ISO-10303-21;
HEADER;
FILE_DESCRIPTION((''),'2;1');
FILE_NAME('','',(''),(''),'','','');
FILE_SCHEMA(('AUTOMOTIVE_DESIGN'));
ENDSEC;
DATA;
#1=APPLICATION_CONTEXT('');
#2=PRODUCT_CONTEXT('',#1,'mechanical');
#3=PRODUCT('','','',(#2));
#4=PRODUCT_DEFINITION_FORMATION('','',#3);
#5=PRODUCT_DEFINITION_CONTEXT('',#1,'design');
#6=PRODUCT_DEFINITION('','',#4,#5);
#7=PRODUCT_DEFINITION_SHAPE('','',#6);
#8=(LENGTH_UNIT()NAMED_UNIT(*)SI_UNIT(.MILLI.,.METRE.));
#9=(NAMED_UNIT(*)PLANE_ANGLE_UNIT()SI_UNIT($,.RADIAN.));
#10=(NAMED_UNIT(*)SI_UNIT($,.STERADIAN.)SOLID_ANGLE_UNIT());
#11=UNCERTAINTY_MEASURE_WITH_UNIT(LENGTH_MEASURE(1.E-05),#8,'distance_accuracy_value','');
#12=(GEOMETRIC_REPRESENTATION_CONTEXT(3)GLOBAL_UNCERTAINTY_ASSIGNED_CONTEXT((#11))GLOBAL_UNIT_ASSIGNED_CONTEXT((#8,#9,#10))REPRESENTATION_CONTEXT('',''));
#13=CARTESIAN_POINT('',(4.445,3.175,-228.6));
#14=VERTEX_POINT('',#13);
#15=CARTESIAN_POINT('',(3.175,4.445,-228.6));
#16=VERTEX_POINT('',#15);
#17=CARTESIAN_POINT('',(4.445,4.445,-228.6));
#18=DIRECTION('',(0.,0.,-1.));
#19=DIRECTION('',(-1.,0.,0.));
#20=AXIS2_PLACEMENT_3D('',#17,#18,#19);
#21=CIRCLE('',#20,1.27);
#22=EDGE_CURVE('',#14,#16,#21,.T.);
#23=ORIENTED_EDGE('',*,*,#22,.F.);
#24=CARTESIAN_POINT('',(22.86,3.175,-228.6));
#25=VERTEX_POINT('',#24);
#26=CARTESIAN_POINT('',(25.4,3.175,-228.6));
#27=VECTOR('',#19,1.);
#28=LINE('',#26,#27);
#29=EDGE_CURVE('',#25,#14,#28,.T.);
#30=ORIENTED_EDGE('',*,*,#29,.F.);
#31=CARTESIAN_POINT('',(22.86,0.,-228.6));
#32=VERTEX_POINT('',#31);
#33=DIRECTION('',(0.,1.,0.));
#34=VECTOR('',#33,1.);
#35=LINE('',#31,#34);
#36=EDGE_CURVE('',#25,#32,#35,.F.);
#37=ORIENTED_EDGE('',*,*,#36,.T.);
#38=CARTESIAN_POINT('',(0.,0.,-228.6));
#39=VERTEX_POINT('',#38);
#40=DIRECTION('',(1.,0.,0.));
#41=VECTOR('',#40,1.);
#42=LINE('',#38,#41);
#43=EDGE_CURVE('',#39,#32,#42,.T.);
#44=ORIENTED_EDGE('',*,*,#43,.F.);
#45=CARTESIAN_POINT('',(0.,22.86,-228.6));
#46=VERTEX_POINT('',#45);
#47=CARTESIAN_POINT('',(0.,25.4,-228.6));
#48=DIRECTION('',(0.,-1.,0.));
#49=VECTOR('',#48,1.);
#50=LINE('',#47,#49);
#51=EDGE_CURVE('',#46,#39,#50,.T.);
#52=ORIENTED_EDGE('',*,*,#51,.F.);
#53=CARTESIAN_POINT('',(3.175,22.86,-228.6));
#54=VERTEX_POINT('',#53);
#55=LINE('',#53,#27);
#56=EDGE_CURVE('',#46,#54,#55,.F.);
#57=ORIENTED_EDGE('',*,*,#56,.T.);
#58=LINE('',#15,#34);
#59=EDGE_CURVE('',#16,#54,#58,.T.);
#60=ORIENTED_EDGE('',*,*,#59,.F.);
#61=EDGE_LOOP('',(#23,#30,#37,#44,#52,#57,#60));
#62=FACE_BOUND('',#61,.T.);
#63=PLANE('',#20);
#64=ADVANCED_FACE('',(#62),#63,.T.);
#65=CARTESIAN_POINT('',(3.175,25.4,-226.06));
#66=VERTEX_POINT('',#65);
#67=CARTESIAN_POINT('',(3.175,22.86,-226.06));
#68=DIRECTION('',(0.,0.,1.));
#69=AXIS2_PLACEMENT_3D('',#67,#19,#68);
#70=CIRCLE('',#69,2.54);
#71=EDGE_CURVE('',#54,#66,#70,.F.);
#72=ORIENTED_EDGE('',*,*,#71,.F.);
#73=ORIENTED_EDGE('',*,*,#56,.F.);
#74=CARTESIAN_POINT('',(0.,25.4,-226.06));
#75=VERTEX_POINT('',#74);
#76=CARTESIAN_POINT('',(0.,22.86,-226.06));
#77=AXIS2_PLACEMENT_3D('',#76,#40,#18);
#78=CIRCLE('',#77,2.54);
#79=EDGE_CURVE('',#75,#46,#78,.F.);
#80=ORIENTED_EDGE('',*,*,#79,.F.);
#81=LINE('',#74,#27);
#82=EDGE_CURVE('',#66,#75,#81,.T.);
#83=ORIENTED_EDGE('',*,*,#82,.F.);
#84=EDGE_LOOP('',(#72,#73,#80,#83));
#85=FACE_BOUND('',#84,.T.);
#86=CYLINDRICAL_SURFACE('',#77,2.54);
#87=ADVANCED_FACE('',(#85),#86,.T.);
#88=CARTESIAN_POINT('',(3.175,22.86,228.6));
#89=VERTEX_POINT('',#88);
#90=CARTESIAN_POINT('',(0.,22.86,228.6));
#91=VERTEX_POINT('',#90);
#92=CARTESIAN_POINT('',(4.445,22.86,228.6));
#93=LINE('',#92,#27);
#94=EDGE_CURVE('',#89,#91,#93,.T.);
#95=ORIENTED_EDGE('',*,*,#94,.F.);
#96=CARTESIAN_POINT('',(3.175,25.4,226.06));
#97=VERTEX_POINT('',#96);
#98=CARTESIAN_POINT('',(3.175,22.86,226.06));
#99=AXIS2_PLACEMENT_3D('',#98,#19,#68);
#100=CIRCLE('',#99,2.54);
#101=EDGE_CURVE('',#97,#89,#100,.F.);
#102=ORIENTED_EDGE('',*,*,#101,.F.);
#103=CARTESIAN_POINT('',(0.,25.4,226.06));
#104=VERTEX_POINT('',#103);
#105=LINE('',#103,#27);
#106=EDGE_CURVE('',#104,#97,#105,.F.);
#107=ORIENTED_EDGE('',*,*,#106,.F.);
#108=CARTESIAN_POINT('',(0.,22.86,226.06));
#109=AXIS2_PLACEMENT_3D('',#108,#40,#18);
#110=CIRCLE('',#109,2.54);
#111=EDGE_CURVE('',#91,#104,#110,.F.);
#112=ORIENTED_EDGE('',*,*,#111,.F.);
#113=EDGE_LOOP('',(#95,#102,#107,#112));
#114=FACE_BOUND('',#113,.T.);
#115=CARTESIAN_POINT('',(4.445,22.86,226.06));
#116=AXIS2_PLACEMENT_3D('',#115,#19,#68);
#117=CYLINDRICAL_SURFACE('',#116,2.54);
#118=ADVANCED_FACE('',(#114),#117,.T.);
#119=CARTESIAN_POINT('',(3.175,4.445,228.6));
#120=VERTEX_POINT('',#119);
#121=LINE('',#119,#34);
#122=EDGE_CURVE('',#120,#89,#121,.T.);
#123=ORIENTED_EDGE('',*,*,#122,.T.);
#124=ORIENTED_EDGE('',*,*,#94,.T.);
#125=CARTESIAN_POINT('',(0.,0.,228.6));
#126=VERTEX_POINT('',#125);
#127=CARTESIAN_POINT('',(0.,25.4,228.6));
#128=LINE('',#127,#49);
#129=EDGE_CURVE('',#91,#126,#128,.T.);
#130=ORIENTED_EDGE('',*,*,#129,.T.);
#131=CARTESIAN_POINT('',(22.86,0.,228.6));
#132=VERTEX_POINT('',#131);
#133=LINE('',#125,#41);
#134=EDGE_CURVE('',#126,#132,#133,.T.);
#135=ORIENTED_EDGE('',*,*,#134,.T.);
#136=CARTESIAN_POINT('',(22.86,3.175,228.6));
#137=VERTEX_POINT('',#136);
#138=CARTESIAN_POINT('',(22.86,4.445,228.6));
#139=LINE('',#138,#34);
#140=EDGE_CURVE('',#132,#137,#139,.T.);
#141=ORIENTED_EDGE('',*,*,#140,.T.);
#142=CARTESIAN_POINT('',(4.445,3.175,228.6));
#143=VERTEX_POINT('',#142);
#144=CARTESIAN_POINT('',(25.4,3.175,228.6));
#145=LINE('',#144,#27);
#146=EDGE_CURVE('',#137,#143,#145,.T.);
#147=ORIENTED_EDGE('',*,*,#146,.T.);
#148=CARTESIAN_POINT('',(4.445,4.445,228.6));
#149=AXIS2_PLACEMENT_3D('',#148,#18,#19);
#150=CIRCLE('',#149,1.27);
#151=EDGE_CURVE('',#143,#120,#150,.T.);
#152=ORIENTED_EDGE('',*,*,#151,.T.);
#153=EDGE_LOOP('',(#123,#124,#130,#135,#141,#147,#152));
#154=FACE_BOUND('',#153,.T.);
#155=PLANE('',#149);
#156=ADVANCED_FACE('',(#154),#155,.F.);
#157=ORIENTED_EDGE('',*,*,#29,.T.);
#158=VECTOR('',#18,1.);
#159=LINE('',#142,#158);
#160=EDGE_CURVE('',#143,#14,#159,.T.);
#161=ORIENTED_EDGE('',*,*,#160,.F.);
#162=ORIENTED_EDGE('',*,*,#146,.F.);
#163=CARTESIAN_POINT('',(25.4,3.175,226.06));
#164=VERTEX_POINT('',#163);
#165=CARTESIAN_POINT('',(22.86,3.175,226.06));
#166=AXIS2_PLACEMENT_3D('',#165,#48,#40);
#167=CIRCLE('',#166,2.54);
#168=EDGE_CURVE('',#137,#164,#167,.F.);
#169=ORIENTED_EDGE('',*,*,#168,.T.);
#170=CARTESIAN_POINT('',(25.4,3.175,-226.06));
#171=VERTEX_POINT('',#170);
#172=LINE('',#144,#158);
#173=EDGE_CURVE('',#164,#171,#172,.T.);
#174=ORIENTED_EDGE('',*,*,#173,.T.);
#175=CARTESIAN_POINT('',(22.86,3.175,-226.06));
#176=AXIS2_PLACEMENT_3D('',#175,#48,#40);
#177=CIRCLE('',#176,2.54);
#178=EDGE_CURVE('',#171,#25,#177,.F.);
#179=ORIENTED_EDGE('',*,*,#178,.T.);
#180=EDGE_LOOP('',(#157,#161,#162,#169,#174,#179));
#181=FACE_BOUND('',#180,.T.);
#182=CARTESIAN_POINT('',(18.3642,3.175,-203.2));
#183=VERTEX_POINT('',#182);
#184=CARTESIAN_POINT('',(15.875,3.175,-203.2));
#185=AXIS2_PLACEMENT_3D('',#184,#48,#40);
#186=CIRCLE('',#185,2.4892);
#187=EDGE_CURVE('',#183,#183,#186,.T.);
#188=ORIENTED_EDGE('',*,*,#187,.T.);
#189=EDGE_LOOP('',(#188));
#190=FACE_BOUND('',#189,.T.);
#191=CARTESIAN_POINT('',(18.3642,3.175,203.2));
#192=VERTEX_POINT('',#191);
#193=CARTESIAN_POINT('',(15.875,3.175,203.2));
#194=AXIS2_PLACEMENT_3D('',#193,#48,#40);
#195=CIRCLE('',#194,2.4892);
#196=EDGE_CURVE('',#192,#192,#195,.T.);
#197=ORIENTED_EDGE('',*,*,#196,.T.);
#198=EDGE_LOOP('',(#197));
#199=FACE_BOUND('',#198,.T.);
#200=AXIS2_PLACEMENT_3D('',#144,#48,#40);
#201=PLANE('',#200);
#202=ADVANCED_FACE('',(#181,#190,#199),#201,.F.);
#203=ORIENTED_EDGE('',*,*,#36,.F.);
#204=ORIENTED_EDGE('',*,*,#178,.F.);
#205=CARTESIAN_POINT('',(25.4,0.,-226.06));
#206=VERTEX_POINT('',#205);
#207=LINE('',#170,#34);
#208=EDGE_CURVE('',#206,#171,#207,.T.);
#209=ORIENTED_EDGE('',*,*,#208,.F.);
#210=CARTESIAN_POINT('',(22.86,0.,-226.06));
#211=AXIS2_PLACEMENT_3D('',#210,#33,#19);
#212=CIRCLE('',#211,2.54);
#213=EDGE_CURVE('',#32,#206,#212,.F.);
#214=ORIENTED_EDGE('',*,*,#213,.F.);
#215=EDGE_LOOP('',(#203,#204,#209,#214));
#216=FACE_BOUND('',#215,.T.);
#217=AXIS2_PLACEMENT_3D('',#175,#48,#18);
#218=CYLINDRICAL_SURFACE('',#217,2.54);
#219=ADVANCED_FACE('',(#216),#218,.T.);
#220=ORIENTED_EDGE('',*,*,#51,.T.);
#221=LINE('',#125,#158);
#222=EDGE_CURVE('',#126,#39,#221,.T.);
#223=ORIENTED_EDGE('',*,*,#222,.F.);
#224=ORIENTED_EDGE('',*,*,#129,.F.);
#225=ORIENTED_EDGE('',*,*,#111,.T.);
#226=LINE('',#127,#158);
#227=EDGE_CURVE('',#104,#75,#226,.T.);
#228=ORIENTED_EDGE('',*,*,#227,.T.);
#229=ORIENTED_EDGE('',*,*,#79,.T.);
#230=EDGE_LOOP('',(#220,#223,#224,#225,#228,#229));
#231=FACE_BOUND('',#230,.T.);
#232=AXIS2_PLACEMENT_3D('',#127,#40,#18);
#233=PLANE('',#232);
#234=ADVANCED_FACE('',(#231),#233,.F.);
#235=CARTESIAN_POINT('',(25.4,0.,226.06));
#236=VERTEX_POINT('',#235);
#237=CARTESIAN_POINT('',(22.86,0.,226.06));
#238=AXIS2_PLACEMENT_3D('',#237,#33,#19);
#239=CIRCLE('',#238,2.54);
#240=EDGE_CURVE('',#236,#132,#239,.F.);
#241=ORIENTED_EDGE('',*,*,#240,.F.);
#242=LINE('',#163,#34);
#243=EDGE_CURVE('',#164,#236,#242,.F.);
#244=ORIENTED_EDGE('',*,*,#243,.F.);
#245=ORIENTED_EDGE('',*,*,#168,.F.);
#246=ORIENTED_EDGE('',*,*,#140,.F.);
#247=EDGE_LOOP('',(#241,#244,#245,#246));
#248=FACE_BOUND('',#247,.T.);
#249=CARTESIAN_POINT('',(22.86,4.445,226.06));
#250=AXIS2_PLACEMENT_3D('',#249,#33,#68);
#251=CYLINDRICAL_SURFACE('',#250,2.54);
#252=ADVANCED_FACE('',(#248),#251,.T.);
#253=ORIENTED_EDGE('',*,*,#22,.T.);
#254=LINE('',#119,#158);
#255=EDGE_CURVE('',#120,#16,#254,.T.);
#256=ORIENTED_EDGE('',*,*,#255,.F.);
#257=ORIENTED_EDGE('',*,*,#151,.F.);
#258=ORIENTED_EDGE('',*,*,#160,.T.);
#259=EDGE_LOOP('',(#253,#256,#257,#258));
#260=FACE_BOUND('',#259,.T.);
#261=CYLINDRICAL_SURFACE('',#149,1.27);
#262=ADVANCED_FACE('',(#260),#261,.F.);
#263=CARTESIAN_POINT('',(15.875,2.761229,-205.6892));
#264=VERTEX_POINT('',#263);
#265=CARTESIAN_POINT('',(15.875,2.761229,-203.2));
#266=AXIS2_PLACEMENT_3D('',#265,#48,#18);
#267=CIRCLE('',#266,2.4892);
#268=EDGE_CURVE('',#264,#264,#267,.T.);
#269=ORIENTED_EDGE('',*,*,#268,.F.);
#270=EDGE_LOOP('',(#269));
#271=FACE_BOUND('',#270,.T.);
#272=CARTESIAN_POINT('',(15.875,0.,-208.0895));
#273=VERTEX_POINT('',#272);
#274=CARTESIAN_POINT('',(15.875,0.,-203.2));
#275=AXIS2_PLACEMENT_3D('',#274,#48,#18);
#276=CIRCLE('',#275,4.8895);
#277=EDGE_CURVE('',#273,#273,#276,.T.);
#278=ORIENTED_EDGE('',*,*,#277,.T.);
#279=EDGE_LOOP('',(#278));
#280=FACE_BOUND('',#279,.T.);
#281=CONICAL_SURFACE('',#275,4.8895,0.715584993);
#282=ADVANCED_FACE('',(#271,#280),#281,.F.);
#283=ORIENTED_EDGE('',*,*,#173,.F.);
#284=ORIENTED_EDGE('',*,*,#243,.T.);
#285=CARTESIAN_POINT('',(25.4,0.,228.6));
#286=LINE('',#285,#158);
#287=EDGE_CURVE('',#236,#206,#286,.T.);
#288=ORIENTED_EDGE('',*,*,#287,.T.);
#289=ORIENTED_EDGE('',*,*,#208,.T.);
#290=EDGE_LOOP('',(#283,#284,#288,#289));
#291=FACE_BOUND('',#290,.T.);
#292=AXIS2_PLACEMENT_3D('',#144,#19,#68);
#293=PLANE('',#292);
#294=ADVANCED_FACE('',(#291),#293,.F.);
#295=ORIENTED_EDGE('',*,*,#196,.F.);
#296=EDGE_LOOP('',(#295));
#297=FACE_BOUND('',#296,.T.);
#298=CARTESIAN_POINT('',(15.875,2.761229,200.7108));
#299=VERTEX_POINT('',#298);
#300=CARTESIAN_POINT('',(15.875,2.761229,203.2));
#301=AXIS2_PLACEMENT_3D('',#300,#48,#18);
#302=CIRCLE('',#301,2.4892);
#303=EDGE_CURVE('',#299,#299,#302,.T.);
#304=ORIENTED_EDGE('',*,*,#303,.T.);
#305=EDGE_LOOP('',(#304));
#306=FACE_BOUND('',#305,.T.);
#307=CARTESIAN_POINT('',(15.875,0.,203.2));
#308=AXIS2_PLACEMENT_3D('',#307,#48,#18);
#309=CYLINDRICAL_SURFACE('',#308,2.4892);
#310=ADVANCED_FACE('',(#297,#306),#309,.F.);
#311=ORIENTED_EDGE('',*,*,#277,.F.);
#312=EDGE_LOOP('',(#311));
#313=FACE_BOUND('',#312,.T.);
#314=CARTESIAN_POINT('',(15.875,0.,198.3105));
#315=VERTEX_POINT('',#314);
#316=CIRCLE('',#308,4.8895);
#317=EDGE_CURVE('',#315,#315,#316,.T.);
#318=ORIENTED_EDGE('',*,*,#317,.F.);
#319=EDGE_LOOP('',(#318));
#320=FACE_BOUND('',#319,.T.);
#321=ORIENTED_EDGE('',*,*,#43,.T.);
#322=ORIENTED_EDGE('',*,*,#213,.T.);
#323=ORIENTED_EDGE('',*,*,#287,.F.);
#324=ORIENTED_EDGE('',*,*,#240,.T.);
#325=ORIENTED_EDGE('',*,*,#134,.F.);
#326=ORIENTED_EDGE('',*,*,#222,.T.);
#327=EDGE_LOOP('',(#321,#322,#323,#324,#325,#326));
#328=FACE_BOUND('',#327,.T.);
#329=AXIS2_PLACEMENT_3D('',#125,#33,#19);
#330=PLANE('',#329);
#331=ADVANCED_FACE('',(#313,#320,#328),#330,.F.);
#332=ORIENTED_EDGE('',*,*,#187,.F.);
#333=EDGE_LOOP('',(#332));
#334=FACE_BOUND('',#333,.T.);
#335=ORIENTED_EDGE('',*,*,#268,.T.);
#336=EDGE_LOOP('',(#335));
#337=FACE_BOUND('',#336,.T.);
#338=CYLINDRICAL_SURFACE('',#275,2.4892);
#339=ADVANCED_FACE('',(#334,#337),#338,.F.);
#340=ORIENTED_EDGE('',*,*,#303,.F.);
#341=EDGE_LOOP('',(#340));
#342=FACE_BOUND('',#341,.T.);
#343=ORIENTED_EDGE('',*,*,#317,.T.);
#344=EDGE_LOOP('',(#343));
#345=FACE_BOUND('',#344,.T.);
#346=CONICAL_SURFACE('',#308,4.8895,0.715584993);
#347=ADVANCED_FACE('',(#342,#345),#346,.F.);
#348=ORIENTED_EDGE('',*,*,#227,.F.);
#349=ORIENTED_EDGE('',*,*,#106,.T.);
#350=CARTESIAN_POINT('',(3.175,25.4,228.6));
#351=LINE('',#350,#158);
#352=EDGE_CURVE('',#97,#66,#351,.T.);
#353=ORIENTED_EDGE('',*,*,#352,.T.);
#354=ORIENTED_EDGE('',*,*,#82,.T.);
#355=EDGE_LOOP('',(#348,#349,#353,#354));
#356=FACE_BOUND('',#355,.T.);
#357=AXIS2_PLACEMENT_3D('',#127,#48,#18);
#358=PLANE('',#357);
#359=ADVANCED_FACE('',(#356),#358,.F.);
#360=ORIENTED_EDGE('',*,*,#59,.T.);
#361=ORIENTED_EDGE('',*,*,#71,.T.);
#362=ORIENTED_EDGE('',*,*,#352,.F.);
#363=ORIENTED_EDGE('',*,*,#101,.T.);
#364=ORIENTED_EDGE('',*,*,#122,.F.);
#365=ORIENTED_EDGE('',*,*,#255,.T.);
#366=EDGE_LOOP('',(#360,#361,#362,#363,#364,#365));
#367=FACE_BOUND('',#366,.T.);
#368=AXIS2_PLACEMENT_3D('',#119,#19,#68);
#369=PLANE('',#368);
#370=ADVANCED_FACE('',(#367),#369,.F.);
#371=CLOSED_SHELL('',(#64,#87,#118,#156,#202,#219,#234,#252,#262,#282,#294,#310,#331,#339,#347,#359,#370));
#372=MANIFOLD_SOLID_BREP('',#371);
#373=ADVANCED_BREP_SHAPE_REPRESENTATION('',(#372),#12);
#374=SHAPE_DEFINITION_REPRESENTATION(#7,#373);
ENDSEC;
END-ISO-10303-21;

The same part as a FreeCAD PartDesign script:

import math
import FreeCAD as App
import Part
import Sketcher
from FreeCAD import Vector
Q = App.Units.Quantity


def edges_at(feature, points):
    """Names of the edges that pass closest to the given points."""
    edges = feature.Shape.Edges
    near = lambda p: min(range(len(edges)), key=lambda i: edges[i].distToShape(Part.Vertex(*p))[0])
    return sorted({f"Edge{near(p) + 1}" for p in points})


def add_polygon(sketch, points):
    """Adds a closed chain of lines whose ends are joined by coincident constraints."""
    first, n = sketch.GeometryCount, len(points)
    for a, b in zip(points, points[1:] + points[:1]):
        sketch.addGeometry(Part.LineSegment(App.Vector(*a, 0), App.Vector(*b, 0)), False)
    for i in range(n):
        sketch.addConstraint(Sketcher.Constraint("Coincident", first + i, 2, first + (i + 1) % n, 1))

doc = App.newDocument("Part")
body = doc.addObject("PartDesign::Body", "Body")

sketch1 = body.newObject("Sketcher::SketchObject", "Sketch")
sketch1.AttachmentSupport = (doc.getObject("XY_Plane"), [""])
sketch1.MapMode = "FlatFace"
sketch1.addGeometry([
    Part.LineSegment(Vector(0, 0, 0), Vector(25.4, 0, 0)),
    Part.LineSegment(Vector(25.4, 0, 0), Vector(25.4, 3.2, 0)),
    Part.LineSegment(Vector(25.4, 3.2, 0), Vector(4.4, 3.2, 0)),
    Part.ArcOfCircle(Part.Circle(Vector(4.4, 4.4, 0), Vector(0, 0, 1), 1.3), math.radians(180), math.radians(270)),
    Part.LineSegment(Vector(3.2, 4.4, 0), Vector(3.2, 25.4, 0)),
    Part.LineSegment(Vector(3.2, 25.4, 0), Vector(0, 25.4, 0)),
    Part.LineSegment(Vector(0, 25.4, 0), Vector(0, 0, 0)),
], False)
sketch1.addConstraint([
    Sketcher.Constraint("Coincident", 0, 2, 1, 1),
    Sketcher.Constraint("Coincident", 1, 2, 2, 1),
    Sketcher.Constraint("Tangent", 2, 2, 3, 2),
    Sketcher.Constraint("Tangent", 3, 1, 4, 1),
    Sketcher.Constraint("Coincident", 4, 2, 5, 1),
    Sketcher.Constraint("Coincident", 5, 2, 6, 1),
    Sketcher.Constraint("Coincident", 6, 2, 0, 1),
    Sketcher.Constraint("Horizontal", 0),
    Sketcher.Constraint("Vertical", 1),
    Sketcher.Constraint("Horizontal", 2),
    Sketcher.Constraint("Vertical", 4),
    Sketcher.Constraint("Horizontal", 5),
    Sketcher.Constraint("Vertical", 6),
    Sketcher.Constraint("Coincident", 6, 2, -1, 1),
    Sketcher.Constraint("Equal", 5, 1),
    Sketcher.Constraint("Equal", 2, 4),
    Sketcher.Constraint("DistanceX", 0, 1, 0, 2, Q("1 in")),
    Sketcher.Constraint("Radius", 3, Q("0.05 in")),
    Sketcher.Constraint("DistanceX", 2, 2, 2, 1, Q("0.825 in")),
])
pad1 = body.newObject("PartDesign::Pad", "Pad")
pad1.Profile = sketch1
pad1.Length = Q("18 in")
pad1.Midplane = True

sketch2 = body.newObject("Sketcher::SketchObject", "Sketch001")
sketch2.AttachmentSupport = (doc.getObject("YZ_Plane"), [""])
sketch2.MapMode = "FlatFace"
sketch2.AttachmentOffset = App.Placement(Vector(0, 0, 0.625 * 25.4), App.Rotation())
add_polygon(sketch2, [(3.17, -203.2), (0, -203.2), (0, -208.09), (2.76, -205.69), (3.17, -205.69)])
sketch2.addGeometry(Part.LineSegment(Vector(0, -203.2, 0), Vector(3.17, -203.2, 0)), True)
sketch2.addConstraint([
    Sketcher.Constraint("Horizontal", 0),
    Sketcher.Constraint("Vertical", 1),
    Sketcher.Constraint("Horizontal", 3),
    Sketcher.Constraint("Vertical", 4),
    Sketcher.Constraint("Horizontal", 5),
    Sketcher.Constraint("Coincident", 5, 1, 0, 2),
    Sketcher.Constraint("PointOnObject", 0, 2, -2),
    Sketcher.Constraint("Vertical", 3, 2, 5, 2),
    Sketcher.Constraint("DistanceY", 0, 2, -1, 1, Q("8 in")),
    Sketcher.Constraint("Angle", 2, Q("41 deg")),
    Sketcher.Constraint("DistanceX", 0, 2, 0, 1, Q("0.125 in")),
    Sketcher.Constraint("DistanceY", 4, 1, 4, 2, Q("0.098 in")),
    Sketcher.Constraint("DistanceY", 1, 2, 1, 1, Q("0.1925 in")),
])
groove = body.newObject("PartDesign::Groove", "Groove")
groove.Profile = sketch2
groove.ReferenceAxis = (sketch2, ["Axis0"])
groove.Angle = 360
doc.recompute()

mirrored = body.newObject("PartDesign::Mirrored", "Mirrored")
mirrored.Originals = [groove]
mirrored.MirrorPlane = (doc.getObject("XY_Plane"), [""])
body.Tip = mirrored
doc.recompute()

fillet = body.newObject("PartDesign::Fillet", "Fillet")
fillet.Base = (mirrored, edges_at(mirrored, [
    (25.4, 1.587, 228.6),
    (1.587, 25.4, 228.6),
    (1.587, 25.4, -228.6),
    (25.4, 1.587, -228.6),
]))
fillet.Radius = Q("0.1 in")

doc.recompute()
